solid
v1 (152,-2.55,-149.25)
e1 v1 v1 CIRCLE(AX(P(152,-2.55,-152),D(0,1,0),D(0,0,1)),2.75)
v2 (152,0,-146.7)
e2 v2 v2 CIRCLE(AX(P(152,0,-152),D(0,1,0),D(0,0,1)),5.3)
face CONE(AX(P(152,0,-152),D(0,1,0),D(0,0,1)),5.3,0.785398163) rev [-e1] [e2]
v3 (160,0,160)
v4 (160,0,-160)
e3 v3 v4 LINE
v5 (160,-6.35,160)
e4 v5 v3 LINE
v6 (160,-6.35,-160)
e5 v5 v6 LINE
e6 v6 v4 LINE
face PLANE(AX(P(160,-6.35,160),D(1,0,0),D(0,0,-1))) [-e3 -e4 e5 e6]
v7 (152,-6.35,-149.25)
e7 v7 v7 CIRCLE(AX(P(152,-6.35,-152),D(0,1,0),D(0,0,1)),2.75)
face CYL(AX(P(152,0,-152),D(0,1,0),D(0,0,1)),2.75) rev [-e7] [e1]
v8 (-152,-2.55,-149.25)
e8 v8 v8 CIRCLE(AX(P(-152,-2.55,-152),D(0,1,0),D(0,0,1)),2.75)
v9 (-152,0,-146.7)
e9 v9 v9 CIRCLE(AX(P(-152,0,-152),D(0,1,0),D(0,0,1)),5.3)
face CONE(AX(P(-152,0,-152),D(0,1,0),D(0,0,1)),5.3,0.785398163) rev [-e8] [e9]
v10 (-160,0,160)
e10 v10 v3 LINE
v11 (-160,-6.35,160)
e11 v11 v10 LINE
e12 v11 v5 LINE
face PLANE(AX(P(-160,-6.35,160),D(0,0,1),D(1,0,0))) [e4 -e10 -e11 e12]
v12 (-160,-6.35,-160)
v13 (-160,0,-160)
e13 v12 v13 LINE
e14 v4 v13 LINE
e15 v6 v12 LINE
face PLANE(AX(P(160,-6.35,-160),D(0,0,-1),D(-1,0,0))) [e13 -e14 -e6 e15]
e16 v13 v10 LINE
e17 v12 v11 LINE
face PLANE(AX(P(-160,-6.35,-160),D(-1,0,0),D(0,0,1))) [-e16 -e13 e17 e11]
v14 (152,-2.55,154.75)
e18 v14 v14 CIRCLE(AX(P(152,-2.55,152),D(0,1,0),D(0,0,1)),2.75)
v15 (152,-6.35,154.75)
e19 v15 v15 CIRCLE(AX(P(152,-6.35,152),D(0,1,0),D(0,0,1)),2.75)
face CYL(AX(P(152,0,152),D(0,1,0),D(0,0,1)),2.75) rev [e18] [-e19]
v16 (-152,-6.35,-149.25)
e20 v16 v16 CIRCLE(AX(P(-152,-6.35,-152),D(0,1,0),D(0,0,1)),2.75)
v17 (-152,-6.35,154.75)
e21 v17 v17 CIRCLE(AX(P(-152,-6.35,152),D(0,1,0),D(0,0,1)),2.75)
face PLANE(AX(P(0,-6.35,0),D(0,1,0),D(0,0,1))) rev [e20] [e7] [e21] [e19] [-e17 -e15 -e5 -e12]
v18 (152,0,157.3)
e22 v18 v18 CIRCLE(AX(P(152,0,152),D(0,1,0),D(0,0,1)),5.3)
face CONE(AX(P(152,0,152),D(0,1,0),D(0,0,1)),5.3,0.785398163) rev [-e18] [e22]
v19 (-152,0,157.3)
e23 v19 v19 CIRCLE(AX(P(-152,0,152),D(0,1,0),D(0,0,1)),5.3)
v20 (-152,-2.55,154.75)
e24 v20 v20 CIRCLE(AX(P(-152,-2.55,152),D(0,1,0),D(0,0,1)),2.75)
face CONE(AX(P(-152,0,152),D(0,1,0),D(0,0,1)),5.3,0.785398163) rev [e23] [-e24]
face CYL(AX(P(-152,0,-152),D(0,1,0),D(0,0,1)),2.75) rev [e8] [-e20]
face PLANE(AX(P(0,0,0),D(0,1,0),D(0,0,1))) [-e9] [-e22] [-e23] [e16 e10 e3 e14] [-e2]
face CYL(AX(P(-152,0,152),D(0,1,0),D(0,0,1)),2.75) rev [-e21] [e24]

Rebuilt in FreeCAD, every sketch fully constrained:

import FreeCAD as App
import Part
import Sketcher
from FreeCAD import Vector

doc = App.newDocument("Part")
body = doc.addObject("PartDesign::Body", "Body")

sketch1 = body.newObject("Sketcher::SketchObject", "Sketch")
sketch1.AttachmentSupport = (doc.getObject("XZ_Plane"), [""])
sketch1.MapMode = "FlatFace"
sketch1.addGeometry([
    Part.LineSegment(Vector(-160, -160, 0), Vector(-160, 160, 0)),
    Part.LineSegment(Vector(-160, 160, 0), Vector(160, 160, 0)),
    Part.LineSegment(Vector(160, 160, 0), Vector(160, -160, 0)),
    Part.LineSegment(Vector(160, -160, 0), Vector(-160, -160, 0)),
    Part.Circle(Vector(-152, 152, 0), Vector(0, 0, 1), 2.5),
    Part.Circle(Vector(152, 152, 0), Vector(0, 0, 1), 2.5),
    Part.Circle(Vector(-152, -152, 0), Vector(0, 0, 1), 2.5),
    Part.Circle(Vector(152, -152, 0), Vector(0, 0, 1), 2.5),
], False)
sketch1.addConstraint([
    Sketcher.Constraint("Coincident", 0, 2, 1, 1),
    Sketcher.Constraint("Coincident", 1, 2, 2, 1),
    Sketcher.Constraint("Coincident", 2, 2, 3, 1),
    Sketcher.Constraint("Coincident", 3, 2, 0, 1),
    Sketcher.Constraint("Vertical", 0),
    Sketcher.Constraint("Horizontal", 1),
    Sketcher.Constraint("Vertical", 2),
    Sketcher.Constraint("Horizontal", 3),
    Sketcher.Constraint("Equal", 4, 5),
    Sketcher.Constraint("Equal", 5, 6),
    Sketcher.Constraint("Equal", 6, 7),
    Sketcher.Constraint("Symmetric", 5, 3, 6, 3, -1, 1),
    Sketcher.Constraint("Symmetric", 4, 3, 7, 3, -1, 1),
    Sketcher.Constraint("Symmetric", 0, 2, 2, 2, -1, 1),
    Sketcher.Constraint("Symmetric", 4, 3, 5, 3, -2),
    Sketcher.Constraint("Equal", 3, 0),
    Sketcher.Constraint("Diameter", 4, 5.05),
    Sketcher.Constraint("DistanceX", 1, 1, 1, 2, 320.0),
    Sketcher.Constraint("DistanceX", 4, 3, -1, 1, 152.0),
    Sketcher.Constraint("DistanceY", -1, 1, 4, 3, 152.0),
])
pad1 = body.newObject("PartDesign::Pad", "Pad")
pad1.Profile = sketch1
pad1.Length = 6.35

sketch2 = body.newObject("Sketcher::SketchObject", "Sketch001")
sketch2.AttachmentSupport = (doc.getObject("XZ_Plane"), [""])
sketch2.MapMode = "FlatFace"
sketch2.addGeometry([
    Part.Circle(Vector(-152, -152, 0), Vector(0, 0, 1), 2.8),
    Part.Circle(Vector(152, -152, 0), Vector(0, 0, 1), 2.8),
    Part.Circle(Vector(152, 152, 0), Vector(0, 0, 1), 2.8),
    Part.Circle(Vector(-152, 152, 0), Vector(0, 0, 1), 2.8),
], False)
sketch2.addConstraint([
    Sketcher.Constraint("Equal", 0, 1),
    Sketcher.Constraint("Equal", 1, 2),
    Sketcher.Constraint("Equal", 2, 3),
    Sketcher.Constraint("Symmetric", 0, 3, 2, 3, -1, 1),
    Sketcher.Constraint("Symmetric", 1, 3, 3, 3, -1, 1),
    Sketcher.Constraint("Symmetric", 0, 3, 1, 3, -2),
    Sketcher.Constraint("Diameter", 0, 5.5),
    Sketcher.Constraint("DistanceX", 0, 3, -1, 1, 152.0),
    Sketcher.Constraint("DistanceY", 0, 3, -1, 1, 152.0),
])
doc.recompute()
hole = body.newObject("PartDesign::Hole", "Hole")
hole.Profile = sketch2
hole.ThreadType = "None"
hole.Diameter = 5.5
hole.DepthType = "Dimension"
hole.Depth = 6.35
hole.DrillPoint = "Flat"
hole.HoleCutType = "Countersink"
hole.HoleCutDiameter = 10.6
hole.HoleCutCountersinkAngle = 90
hole.Reversed = True

doc.recompute()
